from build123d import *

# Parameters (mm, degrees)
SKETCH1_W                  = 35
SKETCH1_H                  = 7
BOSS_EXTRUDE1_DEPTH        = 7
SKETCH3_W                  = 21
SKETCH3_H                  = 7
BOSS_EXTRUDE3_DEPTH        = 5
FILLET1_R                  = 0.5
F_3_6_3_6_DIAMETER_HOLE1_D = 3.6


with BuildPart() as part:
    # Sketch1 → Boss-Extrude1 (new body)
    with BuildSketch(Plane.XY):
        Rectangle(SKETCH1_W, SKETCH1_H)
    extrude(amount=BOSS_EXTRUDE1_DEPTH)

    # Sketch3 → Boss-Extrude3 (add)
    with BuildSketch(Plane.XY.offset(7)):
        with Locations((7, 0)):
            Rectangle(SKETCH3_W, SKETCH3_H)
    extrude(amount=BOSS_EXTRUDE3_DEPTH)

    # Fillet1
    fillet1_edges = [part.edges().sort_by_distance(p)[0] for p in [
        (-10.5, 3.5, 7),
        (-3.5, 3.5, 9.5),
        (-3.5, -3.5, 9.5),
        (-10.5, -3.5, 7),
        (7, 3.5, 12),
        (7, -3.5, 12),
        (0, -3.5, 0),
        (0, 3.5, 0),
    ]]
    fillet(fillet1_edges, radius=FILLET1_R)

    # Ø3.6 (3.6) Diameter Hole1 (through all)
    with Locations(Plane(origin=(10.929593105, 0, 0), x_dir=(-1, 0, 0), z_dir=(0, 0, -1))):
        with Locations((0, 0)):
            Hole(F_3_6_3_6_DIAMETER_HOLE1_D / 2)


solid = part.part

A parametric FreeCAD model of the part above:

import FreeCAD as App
import Part
import Sketcher


def edges_at(feature, points):
    """Names of the edges that pass closest to the given points."""
    edges = feature.Shape.Edges
    near = lambda p: min(range(len(edges)), key=lambda i: edges[i].distToShape(Part.Vertex(*p))[0])
    return sorted({f"Edge{near(p) + 1}" for p in points})

doc = App.newDocument("Part")
params = doc.addObject("Spreadsheet::Sheet", "Params")
for row, (alias, value) in enumerate([
    ("sketch1_width", "35 mm"),
    ("sketch1_height", "7 mm"),
    ("pad1_length", "7 mm"),
    ("sketch2_width", "21 mm"),
    ("sketch2_height", "7 mm"),
    ("pad2_length", "5 mm"),
    ("fillet_radius", "0.5 mm"),
    ("sketch3_diameter", "3.6 mm"),
    ("hole_diameter", "3.6 mm"),
], start=1):
    params.set(f"A{row}", alias)
    params.set(f"B{row}", "=" + value)
    params.setAlias(f"B{row}", alias)

body = doc.addObject("PartDesign::Body", "Body")

# Sketch on XY plane
sketch1 = body.newObject("Sketcher::SketchObject", "Sketch")
sketch1.AttachmentSupport = (doc.getObject("XY_Plane"), [""])
sketch1.MapMode = "FlatFace"
sketch1.addGeometry([
    Part.LineSegment(App.Vector(-17.5, 3.5, 0), App.Vector(-17.5, -3.5, 0)),
    Part.LineSegment(App.Vector(-17.5, -3.5, 0), App.Vector(17.5, -3.5, 0)),
    Part.LineSegment(App.Vector(17.5, -3.5, 0), App.Vector(17.5, 3.5, 0)),
    Part.LineSegment(App.Vector(17.5, 3.5, 0), App.Vector(-17.5, 3.5, 0)),
], False)
sketch1.addConstraint([
    Sketcher.Constraint("Coincident", 0, 2, 1, 1),
    Sketcher.Constraint("Coincident", 1, 2, 2, 1),
    Sketcher.Constraint("Coincident", 2, 2, 3, 1),
    Sketcher.Constraint("Coincident", 3, 2, 0, 1),
    Sketcher.Constraint("Vertical", 0),
    Sketcher.Constraint("Horizontal", 1),
    Sketcher.Constraint("Vertical", 2),
    Sketcher.Constraint("Horizontal", 3),
    Sketcher.Constraint("Symmetric", 0, 2, 2, 2, -1, 1),
    Sketcher.Constraint("DistanceX", 1, 1, 1, 2, 35.0),
    Sketcher.Constraint("DistanceY", 0, 2, 0, 1, 7.0),
])
sketch1.setExpression("Constraints[9]", "Params.sketch1_width")
sketch1.setExpression("Constraints[10]", "Params.sketch1_height")
pad1 = body.newObject("PartDesign::Pad", "Pad")
pad1.Profile = sketch1
pad1.setExpression("Length", "Params.pad1_length")

# Sketch on XY plane
sketch2 = body.newObject("Sketcher::SketchObject", "Sketch001")
sketch2.AttachmentSupport = (doc.getObject("XY_Plane"), [""])
sketch2.MapMode = "FlatFace"
sketch2.AttachmentOffset = App.Placement(App.Vector(0, 0, 7), App.Rotation())
sketch2.addGeometry([
    Part.LineSegment(App.Vector(-3.5, 3.5, 0), App.Vector(-3.5, -3.5, 0)),
    Part.LineSegment(App.Vector(-3.5, -3.5, 0), App.Vector(17.5, -3.5, 0)),
    Part.LineSegment(App.Vector(17.5, -3.5, 0), App.Vector(17.5, 3.5, 0)),
    Part.LineSegment(App.Vector(17.5, 3.5, 0), App.Vector(-3.5, 3.5, 0)),
], False)
sketch2.addConstraint([
    Sketcher.Constraint("Coincident", 0, 2, 1, 1),
    Sketcher.Constraint("Coincident", 1, 2, 2, 1),
    Sketcher.Constraint("Coincident", 2, 2, 3, 1),
    Sketcher.Constraint("Coincident", 3, 2, 0, 1),
    Sketcher.Constraint("Vertical", 0),
    Sketcher.Constraint("Horizontal", 1),
    Sketcher.Constraint("Vertical", 2),
    Sketcher.Constraint("Horizontal", 3),
    Sketcher.Constraint("DistanceX", 1, 1, 1, 2, 21.0),
    Sketcher.Constraint("DistanceY", 0, 2, 0, 1, 7.0),
    Sketcher.Constraint("DistanceX", 0, 2, -1, 1, 3.5),
    Sketcher.Constraint("DistanceY", 0, 2, -1, 1, 3.5),
])
sketch2.setExpression("Constraints[8]", "Params.sketch2_width")
sketch2.setExpression("Constraints[9]", "Params.sketch2_height")
pad2 = body.newObject("PartDesign::Pad", "Pad001")
pad2.Profile = sketch2
pad2.setExpression("Length", "Params.pad2_length")
doc.recompute()

fillet = body.newObject("PartDesign::Fillet", "Fillet")
fillet.Base = (pad2, edges_at(pad2, [
    (-10.5, 3.5, 7),
    (-3.5, 3.5, 9.5),
    (-3.5, -3.5, 9.5),
    (-10.5, -3.5, 7),
    (7, 3.5, 12),
    (7, -3.5, 12),
    (0, -3.5, 0),
    (0, 3.5, 0),
]))
fillet.setExpression("Radius", "Params.fillet_radius")

# Sketch on XY plane
sketch3 = body.newObject("Sketcher::SketchObject", "Sketch002")
sketch3.AttachmentSupport = (doc.getObject("XY_Plane"), [""])
sketch3.MapMode = "FlatFace"
sketch3.addGeometry(Part.Circle(App.Vector(10.929593, 0, 0), App.Vector(0, 0, 1), 1.8), False)
sketch3.addConstraint([
    Sketcher.Constraint("PointOnObject", 0, 3, -1),
    Sketcher.Constraint("Diameter", 0, 3.6),
    Sketcher.Constraint("DistanceX", -1, 1, 0, 3, 10.929593),
])
sketch3.setExpression("Constraints[1]", "Params.sketch3_diameter")
doc.recompute()
hole = body.newObject("PartDesign::Hole", "Hole")
hole.Profile = sketch3
hole.ThreadType = "None"
hole.setExpression("Diameter", "Params.hole_diameter")
hole.DepthType = "ThroughAll"
hole.Reversed = True

doc.recompute()
